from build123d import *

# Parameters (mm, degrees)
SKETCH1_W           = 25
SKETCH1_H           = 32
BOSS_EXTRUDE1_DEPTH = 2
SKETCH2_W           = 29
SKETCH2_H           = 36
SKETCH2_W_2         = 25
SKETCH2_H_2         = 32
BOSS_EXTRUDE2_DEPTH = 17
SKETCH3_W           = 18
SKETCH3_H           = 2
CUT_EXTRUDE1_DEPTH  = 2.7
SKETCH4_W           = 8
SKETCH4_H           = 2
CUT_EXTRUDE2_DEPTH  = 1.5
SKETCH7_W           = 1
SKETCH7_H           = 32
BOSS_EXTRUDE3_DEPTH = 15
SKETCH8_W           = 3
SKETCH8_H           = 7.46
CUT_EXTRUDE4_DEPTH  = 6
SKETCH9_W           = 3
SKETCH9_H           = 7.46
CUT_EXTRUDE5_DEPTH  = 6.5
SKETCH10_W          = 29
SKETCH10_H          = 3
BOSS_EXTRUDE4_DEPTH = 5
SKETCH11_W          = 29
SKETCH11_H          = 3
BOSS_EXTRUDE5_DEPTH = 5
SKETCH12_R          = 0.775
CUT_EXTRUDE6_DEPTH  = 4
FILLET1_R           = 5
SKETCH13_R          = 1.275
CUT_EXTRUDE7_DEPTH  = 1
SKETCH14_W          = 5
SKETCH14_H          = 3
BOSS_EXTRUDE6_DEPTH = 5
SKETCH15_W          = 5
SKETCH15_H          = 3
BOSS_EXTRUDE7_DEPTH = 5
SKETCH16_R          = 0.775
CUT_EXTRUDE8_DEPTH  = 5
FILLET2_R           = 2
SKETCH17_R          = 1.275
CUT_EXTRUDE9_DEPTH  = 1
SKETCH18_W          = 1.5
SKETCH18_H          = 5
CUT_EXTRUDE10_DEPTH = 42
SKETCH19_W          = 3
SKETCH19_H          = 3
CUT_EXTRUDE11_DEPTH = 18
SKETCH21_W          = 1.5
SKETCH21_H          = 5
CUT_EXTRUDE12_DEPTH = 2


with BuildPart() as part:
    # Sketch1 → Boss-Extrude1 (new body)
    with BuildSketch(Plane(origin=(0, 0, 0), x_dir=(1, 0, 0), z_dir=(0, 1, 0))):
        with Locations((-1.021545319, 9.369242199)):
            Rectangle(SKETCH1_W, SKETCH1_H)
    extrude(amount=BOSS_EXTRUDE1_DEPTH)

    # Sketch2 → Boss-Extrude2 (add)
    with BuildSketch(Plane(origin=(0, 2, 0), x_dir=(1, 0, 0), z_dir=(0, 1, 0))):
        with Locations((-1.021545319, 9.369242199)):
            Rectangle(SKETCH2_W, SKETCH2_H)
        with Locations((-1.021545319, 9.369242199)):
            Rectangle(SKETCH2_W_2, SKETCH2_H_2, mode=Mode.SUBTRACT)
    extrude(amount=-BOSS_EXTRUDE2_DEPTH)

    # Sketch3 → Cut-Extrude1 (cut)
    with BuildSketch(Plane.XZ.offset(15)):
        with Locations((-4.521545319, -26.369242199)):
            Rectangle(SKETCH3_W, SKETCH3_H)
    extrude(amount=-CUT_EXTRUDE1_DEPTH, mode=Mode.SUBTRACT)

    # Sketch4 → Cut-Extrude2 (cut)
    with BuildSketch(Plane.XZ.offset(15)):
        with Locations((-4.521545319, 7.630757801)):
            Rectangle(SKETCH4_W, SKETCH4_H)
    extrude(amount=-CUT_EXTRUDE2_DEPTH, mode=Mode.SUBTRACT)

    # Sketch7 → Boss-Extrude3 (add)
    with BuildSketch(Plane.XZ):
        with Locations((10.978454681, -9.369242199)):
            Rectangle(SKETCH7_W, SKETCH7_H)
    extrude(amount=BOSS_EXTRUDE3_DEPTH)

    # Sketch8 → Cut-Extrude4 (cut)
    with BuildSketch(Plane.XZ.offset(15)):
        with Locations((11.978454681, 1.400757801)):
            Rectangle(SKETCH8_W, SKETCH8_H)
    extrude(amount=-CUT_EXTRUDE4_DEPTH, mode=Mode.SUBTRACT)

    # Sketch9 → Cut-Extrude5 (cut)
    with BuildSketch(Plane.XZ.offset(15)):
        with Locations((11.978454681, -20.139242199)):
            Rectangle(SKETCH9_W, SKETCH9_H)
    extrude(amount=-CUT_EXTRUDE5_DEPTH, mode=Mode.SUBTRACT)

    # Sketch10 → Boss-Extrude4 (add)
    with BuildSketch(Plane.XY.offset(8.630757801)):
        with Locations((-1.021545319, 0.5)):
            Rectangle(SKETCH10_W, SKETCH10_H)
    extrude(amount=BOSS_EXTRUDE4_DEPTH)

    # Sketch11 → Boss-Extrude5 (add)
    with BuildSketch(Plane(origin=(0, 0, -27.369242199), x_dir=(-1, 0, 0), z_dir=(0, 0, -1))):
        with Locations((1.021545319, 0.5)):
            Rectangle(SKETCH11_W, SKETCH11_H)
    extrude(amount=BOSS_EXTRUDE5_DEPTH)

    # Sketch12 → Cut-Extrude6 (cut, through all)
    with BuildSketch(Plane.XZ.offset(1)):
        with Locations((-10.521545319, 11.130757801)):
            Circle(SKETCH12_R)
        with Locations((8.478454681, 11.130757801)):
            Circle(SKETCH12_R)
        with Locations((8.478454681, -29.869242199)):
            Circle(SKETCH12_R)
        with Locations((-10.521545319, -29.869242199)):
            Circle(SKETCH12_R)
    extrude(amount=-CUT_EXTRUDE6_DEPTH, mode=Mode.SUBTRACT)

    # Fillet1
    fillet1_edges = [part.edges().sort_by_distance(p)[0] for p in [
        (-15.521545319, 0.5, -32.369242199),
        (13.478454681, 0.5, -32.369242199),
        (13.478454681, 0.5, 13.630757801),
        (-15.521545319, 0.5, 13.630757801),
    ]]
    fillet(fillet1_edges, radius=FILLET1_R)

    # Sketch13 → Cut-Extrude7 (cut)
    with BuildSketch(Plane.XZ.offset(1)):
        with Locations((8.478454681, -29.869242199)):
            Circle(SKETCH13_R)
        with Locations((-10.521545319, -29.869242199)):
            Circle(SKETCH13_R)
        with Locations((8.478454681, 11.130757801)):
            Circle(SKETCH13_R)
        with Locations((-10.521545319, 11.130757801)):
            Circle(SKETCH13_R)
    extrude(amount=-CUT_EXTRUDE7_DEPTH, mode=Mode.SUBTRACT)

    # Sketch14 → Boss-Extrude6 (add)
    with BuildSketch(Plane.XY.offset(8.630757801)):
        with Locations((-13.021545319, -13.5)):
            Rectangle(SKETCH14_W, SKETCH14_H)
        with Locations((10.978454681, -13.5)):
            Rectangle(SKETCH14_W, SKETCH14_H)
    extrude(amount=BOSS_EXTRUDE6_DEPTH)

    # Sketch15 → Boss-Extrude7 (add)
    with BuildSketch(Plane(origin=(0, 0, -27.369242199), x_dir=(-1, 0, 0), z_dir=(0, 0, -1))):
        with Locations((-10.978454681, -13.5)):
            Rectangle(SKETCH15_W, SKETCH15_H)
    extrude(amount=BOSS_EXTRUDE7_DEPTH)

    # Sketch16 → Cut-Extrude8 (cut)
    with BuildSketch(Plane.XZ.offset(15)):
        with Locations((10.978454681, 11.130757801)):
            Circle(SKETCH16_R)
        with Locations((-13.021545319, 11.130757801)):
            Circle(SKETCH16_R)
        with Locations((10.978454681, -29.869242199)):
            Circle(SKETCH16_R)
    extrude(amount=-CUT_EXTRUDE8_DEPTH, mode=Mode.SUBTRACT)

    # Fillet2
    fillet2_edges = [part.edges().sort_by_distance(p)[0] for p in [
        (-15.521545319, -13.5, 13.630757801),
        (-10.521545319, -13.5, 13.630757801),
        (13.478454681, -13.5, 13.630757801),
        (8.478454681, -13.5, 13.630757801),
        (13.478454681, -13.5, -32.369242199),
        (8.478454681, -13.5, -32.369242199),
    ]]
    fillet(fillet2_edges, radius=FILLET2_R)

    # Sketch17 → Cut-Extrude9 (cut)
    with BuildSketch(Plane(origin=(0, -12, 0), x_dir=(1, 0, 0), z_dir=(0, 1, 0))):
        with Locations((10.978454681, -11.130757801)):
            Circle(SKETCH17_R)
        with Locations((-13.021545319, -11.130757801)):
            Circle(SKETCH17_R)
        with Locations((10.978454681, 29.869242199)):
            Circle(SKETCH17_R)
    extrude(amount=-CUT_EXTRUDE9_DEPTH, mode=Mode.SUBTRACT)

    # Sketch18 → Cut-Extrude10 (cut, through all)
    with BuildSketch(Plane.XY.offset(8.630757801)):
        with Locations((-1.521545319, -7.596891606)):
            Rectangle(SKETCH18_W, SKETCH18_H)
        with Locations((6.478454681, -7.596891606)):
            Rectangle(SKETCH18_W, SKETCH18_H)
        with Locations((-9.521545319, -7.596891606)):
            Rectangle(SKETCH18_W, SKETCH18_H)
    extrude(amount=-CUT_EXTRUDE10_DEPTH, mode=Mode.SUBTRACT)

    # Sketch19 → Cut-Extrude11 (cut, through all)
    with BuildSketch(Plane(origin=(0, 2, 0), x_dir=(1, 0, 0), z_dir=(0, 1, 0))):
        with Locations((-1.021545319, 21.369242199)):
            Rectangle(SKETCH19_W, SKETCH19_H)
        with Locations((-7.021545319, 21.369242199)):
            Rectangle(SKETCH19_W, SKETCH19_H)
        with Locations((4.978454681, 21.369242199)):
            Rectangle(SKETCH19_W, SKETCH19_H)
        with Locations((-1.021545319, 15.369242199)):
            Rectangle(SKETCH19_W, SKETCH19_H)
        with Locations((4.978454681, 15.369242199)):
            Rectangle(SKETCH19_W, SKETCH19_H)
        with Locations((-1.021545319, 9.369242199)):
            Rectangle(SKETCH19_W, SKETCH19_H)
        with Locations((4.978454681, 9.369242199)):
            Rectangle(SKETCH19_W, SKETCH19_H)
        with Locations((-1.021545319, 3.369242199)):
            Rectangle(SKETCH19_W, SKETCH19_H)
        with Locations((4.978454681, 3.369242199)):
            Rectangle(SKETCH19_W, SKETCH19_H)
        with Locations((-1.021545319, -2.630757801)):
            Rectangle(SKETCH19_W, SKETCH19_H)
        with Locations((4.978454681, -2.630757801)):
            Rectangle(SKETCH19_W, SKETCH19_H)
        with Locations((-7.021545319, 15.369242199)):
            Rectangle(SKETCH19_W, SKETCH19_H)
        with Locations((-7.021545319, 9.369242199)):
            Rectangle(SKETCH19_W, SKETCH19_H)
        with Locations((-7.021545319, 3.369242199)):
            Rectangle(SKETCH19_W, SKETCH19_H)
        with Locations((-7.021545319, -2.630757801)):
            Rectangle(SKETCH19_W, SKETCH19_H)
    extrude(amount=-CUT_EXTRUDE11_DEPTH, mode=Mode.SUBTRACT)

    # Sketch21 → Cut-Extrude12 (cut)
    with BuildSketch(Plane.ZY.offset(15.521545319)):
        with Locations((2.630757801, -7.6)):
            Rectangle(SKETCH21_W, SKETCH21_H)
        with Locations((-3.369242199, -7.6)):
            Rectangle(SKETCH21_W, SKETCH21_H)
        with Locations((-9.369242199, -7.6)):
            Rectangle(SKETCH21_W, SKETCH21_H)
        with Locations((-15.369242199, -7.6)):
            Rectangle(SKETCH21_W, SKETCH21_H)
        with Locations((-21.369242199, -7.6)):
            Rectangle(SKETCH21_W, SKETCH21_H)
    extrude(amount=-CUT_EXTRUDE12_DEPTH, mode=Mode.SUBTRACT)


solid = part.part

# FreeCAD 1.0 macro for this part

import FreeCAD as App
import Part
import Sketcher
Q = App.Units.Quantity


def edges_at(feature, points):
    """Names of the edges that pass closest to the given points."""
    edges = feature.Shape.Edges
    near = lambda p: min(range(len(edges)), key=lambda i: edges[i].distToShape(Part.Vertex(*p))[0])
    return sorted({f"Edge{near(p) + 1}" for p in points})


def add_polygon(sketch, points):
    """Adds a closed chain of lines whose ends are joined by coincident constraints."""
    first, n = sketch.GeometryCount, len(points)
    for a, b in zip(points, points[1:] + points[:1]):
        sketch.addGeometry(Part.LineSegment(App.Vector(*a, 0), App.Vector(*b, 0)), False)
    for i in range(n):
        sketch.addConstraint(Sketcher.Constraint("Coincident", first + i, 2, first + (i + 1) % n, 1))

doc = App.newDocument("Part")
params = doc.addObject("Spreadsheet::Sheet", "Params")
for row, (alias, value) in enumerate([
    ("sketch1_width", "25 mm"),
    ("sketch1_height", "32 mm"),
    ("pad1_length", "2 mm"),
    ("sketch2_width", "29 mm"),
    ("sketch2_width2", "25 mm"),
    ("sketch2_height", "36 mm"),
    ("sketch2_height2", "32 mm"),
    ("pad2_length", "17 mm"),
    ("sketch3_width", "18 mm"),
    ("sketch3_height", "2 mm"),
    ("pocket1_length", "2.7 mm"),
    ("sketch4_width", "8 mm"),
    ("sketch4_height", "2 mm"),
    ("pocket2_length", "1.5 mm"),
    ("sketch5_width", "1 mm"),
    ("sketch5_height", "32 mm"),
    ("pad3_length", "15 mm"),
    ("sketch6_width", "3 mm"),
    ("sketch6_height", "7.46 mm"),
    ("pocket3_length", "6 mm"),
    ("sketch7_width", "3 mm"),
    ("sketch7_height", "7.46 mm"),
    ("pocket4_length", "6.5 mm"),
    ("sketch8_width", "29 mm"),
    ("sketch8_height", "3 mm"),
    ("pad4_length", "5 mm"),
    ("sketch9_width", "29 mm"),
    ("sketch9_height", "3 mm"),
    ("pad5_length", "5 mm"),
    ("sketch10_diameter", "1.55 mm"),
    ("fillet_radius", "5 mm"),
    ("sketch11_diameter", "2.55 mm"),
    ("pocket6_length", "1 mm"),
    ("sketch12_width", "5 mm"),
    ("sketch12_height", "3 mm"),
    ("pad6_length", "5 mm"),
    ("sketch13_width", "5 mm"),
    ("sketch13_height", "3 mm"),
    ("pad7_length", "5 mm"),
    ("sketch14_diameter", "1.55 mm"),
    ("pocket7_length", "5 mm"),
    ("fillet2_radius", "2 mm"),
    ("sketch15_diameter", "2.55 mm"),
    ("pocket8_length", "1 mm"),
    ("sketch16_height", "5 mm"),
    ("sketch16_width", "1.5 mm"),
    ("sketch17_width", "3 mm"),
    ("sketch18_width", "5 mm"),
    ("sketch18_height", "1.5 mm"),
    ("pocket11_length", "2 mm"),
], start=1):
    params.set(f"A{row}", alias)
    params.set(f"B{row}", "=" + value)
    params.setAlias(f"B{row}", alias)

body = doc.addObject("PartDesign::Body", "Body")

sketch1 = body.newObject("Sketcher::SketchObject", "Sketch")
sketch1.AttachmentSupport = (doc.getObject("XZ_Plane"), [""])
sketch1.MapMode = "FlatFace"
add_polygon(sketch1, [(-14, -25), (-14, 7), (11, 7), (11, -25)])
sketch1.addConstraint([
    Sketcher.Constraint("Vertical", 0),
    Sketcher.Constraint("Horizontal", 1),
    Sketcher.Constraint("Vertical", 2),
    Sketcher.Constraint("Horizontal", 3),
    Sketcher.Constraint("DistanceX", 1, 1, 1, 2, Q("25 mm")),
    Sketcher.Constraint("DistanceY", 0, 1, 0, 2, Q("32 mm")),
    Sketcher.Constraint("DistanceX", 0, 2, -1, 1, Q("13.521545 mm")),
    Sketcher.Constraint("DistanceY", -1, 1, 0, 2, Q("6.630758 mm")),
])
sketch1.setExpression("Constraints[8]", "Params.sketch1_width")
sketch1.setExpression("Constraints[9]", "Params.sketch1_height")
pad1 = body.newObject("PartDesign::Pad", "Pad")
pad1.Profile = sketch1
pad1.setExpression("Length", "Params.pad1_length")
pad1.Reversed = True

sketch2 = body.newObject("Sketcher::SketchObject", "Sketch001")
sketch2.AttachmentSupport = (doc.getObject("XZ_Plane"), [""])
sketch2.MapMode = "FlatFace"
sketch2.AttachmentOffset = App.Placement(App.Vector(0, 0, -2), App.Rotation())
add_polygon(sketch2, [(-16, -27), (-16, 9), (13, 9), (13, -27)])
add_polygon(sketch2, [(11, 7), (-14, 7), (-14, -25), (11, -25)])
sketch2.addConstraint([
    Sketcher.Constraint("Vertical", 0),
    Sketcher.Constraint("Horizontal", 1),
    Sketcher.Constraint("Vertical", 2),
    Sketcher.Constraint("Horizontal", 3),
    Sketcher.Constraint("Horizontal", 4),
    Sketcher.Constraint("Vertical", 5),
    Sketcher.Constraint("Horizontal", 6),
    Sketcher.Constraint("Vertical", 7),
    Sketcher.Constraint("DistanceX", 1, 1, 1, 2, Q("29 mm")),
    Sketcher.Constraint("DistanceX", 4, 2, 4, 1, Q("25 mm")),
    Sketcher.Constraint("DistanceY", 0, 1, 0, 2, Q("36 mm")),
    Sketcher.Constraint("DistanceY", 5, 2, 5, 1, Q("32 mm")),
    Sketcher.Constraint("DistanceX", 0, 2, 4, 2, Q("2 mm")),
    Sketcher.Constraint("DistanceY", 4, 2, 0, 2, Q("2 mm")),
    Sketcher.Constraint("DistanceX", 0, 2, -1, 1, Q("15.521545 mm")),
    Sketcher.Constraint("DistanceY", -1, 1, 0, 2, Q("8.630758 mm")),
])
sketch2.setExpression("Constraints[16]", "Params.sketch2_width")
sketch2.setExpression("Constraints[17]", "Params.sketch2_width2")
sketch2.setExpression("Constraints[18]", "Params.sketch2_height")
sketch2.setExpression("Constraints[19]", "Params.sketch2_height2")
pad2 = body.newObject("PartDesign::Pad", "Pad001")
pad2.Profile = sketch2
pad2.setExpression("Length", "Params.pad2_length")

sketch3 = body.newObject("Sketcher::SketchObject", "Sketch002")
sketch3.AttachmentSupport = (doc.getObject("XZ_Plane"), [""])
sketch3.MapMode = "FlatFace"
sketch3.AttachmentOffset = App.Placement(App.Vector(0, 0, 15), App.Rotation())
add_polygon(sketch3, [(-13.5, -25.4), (-13.5, -27.4), (4.5, -27.4), (4.5, -25.4)])
sketch3.addConstraint([
    Sketcher.Constraint("Vertical", 0),
    Sketcher.Constraint("Horizontal", 1),
    Sketcher.Constraint("Vertical", 2),
    Sketcher.Constraint("Horizontal", 3),
    Sketcher.Constraint("DistanceX", 1, 1, 1, 2, Q("18 mm")),
    Sketcher.Constraint("DistanceY", 0, 2, 0, 1, Q("2 mm")),
    Sketcher.Constraint("DistanceX", 0, 2, -1, 1, Q("13.521545 mm")),
    Sketcher.Constraint("DistanceY", 0, 2, -1, 1, Q("27.369242 mm")),
])
sketch3.setExpression("Constraints[8]", "Params.sketch3_width")
sketch3.setExpression("Constraints[9]", "Params.sketch3_height")
pocket1 = body.newObject("PartDesign::Pocket", "Pocket")
pocket1.Profile = sketch3
pocket1.setExpression("Length", "Params.pocket1_length")

sketch4 = body.newObject("Sketcher::SketchObject", "Sketch003")
sketch4.AttachmentSupport = (doc.getObject("XZ_Plane"), [""])
sketch4.MapMode = "FlatFace"
sketch4.AttachmentOffset = App.Placement(App.Vector(0, 0, 15), App.Rotation())
add_polygon(sketch4, [(-8.5, 8.6), (-8.5, 6.6), (-0.5, 6.6), (-0.5, 8.6)])
sketch4.addConstraint([
    Sketcher.Constraint("Vertical", 0),
    Sketcher.Constraint("Horizontal", 1),
    Sketcher.Constraint("Vertical", 2),
    Sketcher.Constraint("Horizontal", 3),
    Sketcher.Constraint("DistanceX", 1, 1, 1, 2, Q("8 mm")),
    Sketcher.Constraint("DistanceY", 0, 2, 0, 1, Q("2 mm")),
    Sketcher.Constraint("DistanceX", 0, 2, -1, 1, Q("8.521545 mm")),
    Sketcher.Constraint("DistanceY", -1, 1, 0, 2, Q("6.630758 mm")),
])
sketch4.setExpression("Constraints[8]", "Params.sketch4_width")
sketch4.setExpression("Constraints[9]", "Params.sketch4_height")
pocket2 = body.newObject("PartDesign::Pocket", "Pocket001")
pocket2.Profile = sketch4
pocket2.setExpression("Length", "Params.pocket2_length")

sketch5 = body.newObject("Sketcher::SketchObject", "Sketch004")
sketch5.AttachmentSupport = (doc.getObject("XZ_Plane"), [""])
sketch5.MapMode = "FlatFace"
add_polygon(sketch5, [(10.5, 6.6), (10.5, -25.4), (11.5, -25.4), (11.5, 6.6)])
sketch5.addConstraint([
    Sketcher.Constraint("Vertical", 0),
    Sketcher.Constraint("Horizontal", 1),
    Sketcher.Constraint("Vertical", 2),
    Sketcher.Constraint("Horizontal", 3),
    Sketcher.Constraint("DistanceX", 1, 1, 1, 2, Q("1 mm")),
    Sketcher.Constraint("DistanceY", 0, 2, 0, 1, Q("32 mm")),
    Sketcher.Constraint("DistanceX", -1, 1, 0, 2, Q("10.478455 mm")),
    Sketcher.Constraint("DistanceY", 0, 2, -1, 1, Q("25.369242 mm")),
])
sketch5.setExpression("Constraints[8]", "Params.sketch5_width")
sketch5.setExpression("Constraints[9]", "Params.sketch5_height")
pad3 = body.newObject("PartDesign::Pad", "Pad002")
pad3.Profile = sketch5
pad3.setExpression("Length", "Params.pad3_length")

sketch6 = body.newObject("Sketcher::SketchObject", "Sketch005")
sketch6.AttachmentSupport = (doc.getObject("XZ_Plane"), [""])
sketch6.MapMode = "FlatFace"
sketch6.AttachmentOffset = App.Placement(App.Vector(0, 0, 15), App.Rotation())
add_polygon(sketch6, [(10.5, 5.1), (10.5, -2.3), (13.5, -2.3), (13.5, 5.1)])
sketch6.addConstraint([
    Sketcher.Constraint("Vertical", 0),
    Sketcher.Constraint("Horizontal", 1),
    Sketcher.Constraint("Vertical", 2),
    Sketcher.Constraint("Horizontal", 3),
    Sketcher.Constraint("DistanceX", 1, 1, 1, 2, Q("3 mm")),
    Sketcher.Constraint("DistanceY", 0, 2, 0, 1, Q("7.46 mm")),
    Sketcher.Constraint("DistanceX", -1, 1, 0, 2, Q("10.478455 mm")),
    Sketcher.Constraint("DistanceY", 0, 2, -1, 1, Q("2.329242 mm")),
])
sketch6.setExpression("Constraints[8]", "Params.sketch6_width")
sketch6.setExpression("Constraints[9]", "Params.sketch6_height")
pocket3 = body.newObject("PartDesign::Pocket", "Pocket002")
pocket3.Profile = sketch6
pocket3.setExpression("Length", "Params.pocket3_length")

sketch7 = body.newObject("Sketcher::SketchObject", "Sketch006")
sketch7.AttachmentSupport = (doc.getObject("XZ_Plane"), [""])
sketch7.MapMode = "FlatFace"
sketch7.AttachmentOffset = App.Placement(App.Vector(0, 0, 15), App.Rotation())
add_polygon(sketch7, [(10.5, -16.4), (10.5, -23.9), (13.5, -23.9), (13.5, -16.4)])
sketch7.addConstraint([
    Sketcher.Constraint("Vertical", 0),
    Sketcher.Constraint("Horizontal", 1),
    Sketcher.Constraint("Vertical", 2),
    Sketcher.Constraint("Horizontal", 3),
    Sketcher.Constraint("DistanceX", 1, 1, 1, 2, Q("3 mm")),
    Sketcher.Constraint("DistanceY", 0, 2, 0, 1, Q("7.46 mm")),
    Sketcher.Constraint("DistanceX", -1, 1, 0, 2, Q("10.478455 mm")),
    Sketcher.Constraint("DistanceY", 0, 2, -1, 1, Q("23.869242 mm")),
])
sketch7.setExpression("Constraints[8]", "Params.sketch7_width")
sketch7.setExpression("Constraints[9]", "Params.sketch7_height")
pocket4 = body.newObject("PartDesign::Pocket", "Pocket003")
pocket4.Profile = sketch7
pocket4.setExpression("Length", "Params.pocket4_length")

sketch8 = body.newObject("Sketcher::SketchObject", "Sketch007")
sketch8.AttachmentSupport = (doc.getObject("XY_Plane"), [""])
sketch8.MapMode = "FlatFace"
sketch8.AttachmentOffset = App.Placement(App.Vector(0, 0, 8.630758), App.Rotation())
add_polygon(sketch8, [(-15.5, 2), (-15.5, -1), (13.5, -1), (13.5, 2)])
sketch8.addConstraint([
    Sketcher.Constraint("Vertical", 0),
    Sketcher.Constraint("Horizontal", 1),
    Sketcher.Constraint("Vertical", 2),
    Sketcher.Constraint("Horizontal", 3),
    Sketcher.Constraint("DistanceX", 1, 1, 1, 2, Q("29 mm")),
    Sketcher.Constraint("DistanceY", 0, 2, 0, 1, Q("3 mm")),
    Sketcher.Constraint("DistanceY", 0, 2, -1, 1, Q("1 mm")),
    Sketcher.Constraint("DistanceX", 0, 2, -1, 1, Q("15.521545 mm")),
])
sketch8.setExpression("Constraints[8]", "Params.sketch8_width")
sketch8.setExpression("Constraints[9]", "Params.sketch8_height")
pad4 = body.newObject("PartDesign::Pad", "Pad003")
pad4.Profile = sketch8
pad4.setExpression("Length", "Params.pad4_length")

sketch9 = body.newObject("Sketcher::SketchObject", "Sketch008")
sketch9.AttachmentSupport = (doc.getObject("XY_Plane"), [""])
sketch9.MapMode = "FlatFace"
sketch9.AttachmentOffset = App.Placement(App.Vector(0, 0, -27.369242), App.Rotation())
add_polygon(sketch9, [(13.5, 2), (13.5, -1), (-15.5, -1), (-15.5, 2)])
sketch9.addConstraint([
    Sketcher.Constraint("Vertical", 0),
    Sketcher.Constraint("Horizontal", 1),
    Sketcher.Constraint("Vertical", 2),
    Sketcher.Constraint("Horizontal", 3),
    Sketcher.Constraint("DistanceX", 1, 2, 1, 1, Q("29 mm")),
    Sketcher.Constraint("DistanceY", 0, 2, 0, 1, Q("3 mm")),
    Sketcher.Constraint("DistanceY", 0, 2, -1, 1, Q("1 mm")),
    Sketcher.Constraint("DistanceX", -1, 1, 0, 2, Q("13.478455 mm")),
])
sketch9.setExpression("Constraints[8]", "Params.sketch9_width")
sketch9.setExpression("Constraints[9]", "Params.sketch9_height")
pad5 = body.newObject("PartDesign::Pad", "Pad004")
pad5.Profile = sketch9
pad5.setExpression("Length", "Params.pad5_length")
pad5.Reversed = True

sketch10 = body.newObject("Sketcher::SketchObject", "Sketch009")
sketch10.AttachmentSupport = (doc.getObject("XZ_Plane"), [""])
sketch10.MapMode = "FlatFace"
sketch10.AttachmentOffset = App.Placement(App.Vector(0, 0, 1), App.Rotation())
sketch10.addGeometry([
    Part.Circle(App.Vector(-10.5, 11.1, 0), App.Vector(0, 0, 1), 0.8),
    Part.Circle(App.Vector(8.5, 11.1, 0), App.Vector(0, 0, 1), 0.8),
    Part.Circle(App.Vector(8.5, -29.9, 0), App.Vector(0, 0, 1), 0.8),
    Part.Circle(App.Vector(-10.5, -29.9, 0), App.Vector(0, 0, 1), 0.8),
], False)
sketch10.addConstraint([
    Sketcher.Constraint("Equal", 0, 1),
    Sketcher.Constraint("Equal", 1, 2),
    Sketcher.Constraint("Equal", 2, 3),
    Sketcher.Constraint("Horizontal", 0, 3, 1, 3),
    Sketcher.Constraint("Horizontal", 2, 3, 3, 3),
    Sketcher.Constraint("Vertical", 1, 3, 2, 3),
    Sketcher.Constraint("Vertical", 0, 3, 3, 3),
    Sketcher.Constraint("Diameter", 0, Q("1.55 mm")),
    Sketcher.Constraint("DistanceX", 0, 3, 1, 3, Q("19 mm")),
    Sketcher.Constraint("DistanceY", 2, 3, 1, 3, Q("41 mm")),
    Sketcher.Constraint("DistanceX", 0, 3, -1, 1, Q("10.521545 mm")),
    Sketcher.Constraint("DistanceY", -1, 1, 0, 3, Q("11.130758 mm")),
])
sketch10.setExpression("Constraints[7]", "Params.sketch10_diameter")
pocket5 = body.newObject("PartDesign::Pocket", "Pocket004")
pocket5.Profile = sketch10
pocket5.Type = "ThroughAll"
doc.recompute()

fillet = body.newObject("PartDesign::Fillet", "Fillet")
fillet.Base = (pocket5, edges_at(pocket5, [
    (-15.522, 0.5, -32.369),
    (13.478, 0.5, -32.369),
    (13.478, 0.5, 13.631),
    (-15.522, 0.5, 13.631),
]))
fillet.setExpression("Radius", "Params.fillet_radius")

sketch11 = body.newObject("Sketcher::SketchObject", "Sketch010")
sketch11.AttachmentSupport = (doc.getObject("XZ_Plane"), [""])
sketch11.MapMode = "FlatFace"
sketch11.AttachmentOffset = App.Placement(App.Vector(0, 0, 1), App.Rotation())
sketch11.addGeometry([
    Part.Circle(App.Vector(8.5, -29.9, 0), App.Vector(0, 0, 1), 1.3),
    Part.Circle(App.Vector(-10.5, -29.9, 0), App.Vector(0, 0, 1), 1.3),
    Part.Circle(App.Vector(8.5, 11.1, 0), App.Vector(0, 0, 1), 1.3),
    Part.Circle(App.Vector(-10.5, 11.1, 0), App.Vector(0, 0, 1), 1.3),
], False)
sketch11.addConstraint([
    Sketcher.Constraint("Equal", 0, 1),
    Sketcher.Constraint("Equal", 1, 2),
    Sketcher.Constraint("Equal", 2, 3),
    Sketcher.Constraint("Horizontal", 0, 3, 1, 3),
    Sketcher.Constraint("Horizontal", 2, 3, 3, 3),
    Sketcher.Constraint("Vertical", 0, 3, 2, 3),
    Sketcher.Constraint("Vertical", 1, 3, 3, 3),
    Sketcher.Constraint("Diameter", 0, Q("2.55 mm")),
    Sketcher.Constraint("DistanceX", 1, 3, 0, 3, Q("19 mm")),
    Sketcher.Constraint("DistanceY", 0, 3, 2, 3, Q("41 mm")),
    Sketcher.Constraint("DistanceX", -1, 1, 0, 3, Q("8.478455 mm")),
    Sketcher.Constraint("DistanceY", 0, 3, -1, 1, Q("29.869242 mm")),
])
sketch11.setExpression("Constraints[7]", "Params.sketch11_diameter")
pocket6 = body.newObject("PartDesign::Pocket", "Pocket005")
pocket6.Profile = sketch11
pocket6.setExpression("Length", "Params.pocket6_length")

sketch12 = body.newObject("Sketcher::SketchObject", "Sketch011")
sketch12.AttachmentSupport = (doc.getObject("XY_Plane"), [""])
sketch12.MapMode = "FlatFace"
sketch12.AttachmentOffset = App.Placement(App.Vector(0, 0, 8.630758), App.Rotation())
add_polygon(sketch12, [(-15.5, -12), (-15.5, -15), (-10.5, -15), (-10.5, -12)])
add_polygon(sketch12, [(8.5, -12), (8.5, -15), (13.5, -15), (13.5, -12)])
sketch12.addConstraint([
    Sketcher.Constraint("Vertical", 0),
    Sketcher.Constraint("Horizontal", 1),
    Sketcher.Constraint("Vertical", 2),
    Sketcher.Constraint("Horizontal", 3),
    Sketcher.Constraint("Vertical", 4),
    Sketcher.Constraint("Horizontal", 5),
    Sketcher.Constraint("Vertical", 6),
    Sketcher.Constraint("Horizontal", 7),
    Sketcher.Constraint("Horizontal", 1, 2, 4, 2),
    Sketcher.Constraint("Horizontal", 3, 2, 6, 2),
    Sketcher.Constraint("Equal", 3, 5),
    Sketcher.Constraint("DistanceX", 1, 1, 1, 2, Q("5 mm")),
    Sketcher.Constraint("DistanceY", 0, 2, 0, 1, Q("3 mm")),
    Sketcher.Constraint("DistanceY", 0, 2, -1, 1, Q("15 mm")),
    Sketcher.Constraint("DistanceX", 1, 2, 4, 2, Q("19 mm")),
    Sketcher.Constraint("DistanceX", 0, 2, -1, 1, Q("15.521545 mm")),
])
sketch12.setExpression("Constraints[19]", "Params.sketch12_width")
sketch12.setExpression("Constraints[20]", "Params.sketch12_height")
pad6 = body.newObject("PartDesign::Pad", "Pad005")
pad6.Profile = sketch12
pad6.setExpression("Length", "Params.pad6_length")

sketch13 = body.newObject("Sketcher::SketchObject", "Sketch012")
sketch13.AttachmentSupport = (doc.getObject("XY_Plane"), [""])
sketch13.MapMode = "FlatFace"
sketch13.AttachmentOffset = App.Placement(App.Vector(0, 0, -27.369242), App.Rotation())
add_polygon(sketch13, [(13.5, -12), (13.5, -15), (8.5, -15), (8.5, -12)])
sketch13.addConstraint([
    Sketcher.Constraint("Vertical", 0),
    Sketcher.Constraint("Horizontal", 1),
    Sketcher.Constraint("Vertical", 2),
    Sketcher.Constraint("Horizontal", 3),
    Sketcher.Constraint("DistanceX", 1, 2, 1, 1, Q("5 mm")),
    Sketcher.Constraint("DistanceY", 0, 2, 0, 1, Q("3 mm")),
    Sketcher.Constraint("DistanceY", 0, 2, -1, 1, Q("15 mm")),
    Sketcher.Constraint("DistanceX", -1, 1, 0, 2, Q("13.478455 mm")),
])
sketch13.setExpression("Constraints[8]", "Params.sketch13_width")
sketch13.setExpression("Constraints[9]", "Params.sketch13_height")
pad7 = body.newObject("PartDesign::Pad", "Pad006")
pad7.Profile = sketch13
pad7.setExpression("Length", "Params.pad7_length")
pad7.Reversed = True

sketch14 = body.newObject("Sketcher::SketchObject", "Sketch013")
sketch14.AttachmentSupport = (doc.getObject("XZ_Plane"), [""])
sketch14.MapMode = "FlatFace"
sketch14.AttachmentOffset = App.Placement(App.Vector(0, 0, 15), App.Rotation())
sketch14.addGeometry([
    Part.Circle(App.Vector(11, 11.1, 0), App.Vector(0, 0, 1), 0.8),
    Part.Circle(App.Vector(-13, 11.1, 0), App.Vector(0, 0, 1), 0.8),
    Part.Circle(App.Vector(11, -29.9, 0), App.Vector(0, 0, 1), 0.8),
], False)
sketch14.addConstraint([
    Sketcher.Constraint("Equal", 0, 1),
    Sketcher.Constraint("Equal", 1, 2),
    Sketcher.Constraint("Horizontal", 0, 3, 1, 3),
    Sketcher.Constraint("Vertical", 0, 3, 2, 3),
    Sketcher.Constraint("Diameter", 0, Q("1.55 mm")),
    Sketcher.Constraint("DistanceX", 1, 3, 0, 3, Q("24 mm")),
    Sketcher.Constraint("DistanceY", 2, 3, 0, 3, Q("41 mm")),
    Sketcher.Constraint("DistanceX", -1, 1, 0, 3, Q("10.978455 mm")),
    Sketcher.Constraint("DistanceY", -1, 1, 0, 3, Q("11.130758 mm")),
])
sketch14.setExpression("Constraints[4]", "Params.sketch14_diameter")
pocket7 = body.newObject("PartDesign::Pocket", "Pocket006")
pocket7.Profile = sketch14
pocket7.setExpression("Length", "Params.pocket7_length")
doc.recompute()

fillet2 = body.newObject("PartDesign::Fillet", "Fillet001")
fillet2.Base = (pocket7, edges_at(pocket7, [
    (-15.522, -13.5, 13.631),
    (-10.522, -13.5, 13.631),
    (13.478, -13.5, 13.631),
    (8.478, -13.5, 13.631),
    (13.478, -13.5, -32.369),
    (8.478, -13.5, -32.369),
]))
fillet2.setExpression("Radius", "Params.fillet2_radius")

sketch15 = body.newObject("Sketcher::SketchObject", "Sketch014")
sketch15.AttachmentSupport = (doc.getObject("XZ_Plane"), [""])
sketch15.MapMode = "FlatFace"
sketch15.AttachmentOffset = App.Placement(App.Vector(0, 0, 12), App.Rotation())
sketch15.addGeometry([
    Part.Circle(App.Vector(11, 11.1, 0), App.Vector(0, 0, 1), 1.3),
    Part.Circle(App.Vector(-13, 11.1, 0), App.Vector(0, 0, 1), 1.3),
    Part.Circle(App.Vector(11, -29.9, 0), App.Vector(0, 0, 1), 1.3),
], False)
sketch15.addConstraint([
    Sketcher.Constraint("Equal", 0, 1),
    Sketcher.Constraint("Equal", 1, 2),
    Sketcher.Constraint("Horizontal", 0, 3, 1, 3),
    Sketcher.Constraint("Vertical", 0, 3, 2, 3),
    Sketcher.Constraint("Diameter", 0, Q("2.55 mm")),
    Sketcher.Constraint("DistanceX", 1, 3, 0, 3, Q("24 mm")),
    Sketcher.Constraint("DistanceY", 2, 3, 0, 3, Q("41 mm")),
    Sketcher.Constraint("DistanceX", -1, 1, 0, 3, Q("10.978455 mm")),
    Sketcher.Constraint("DistanceY", -1, 1, 0, 3, Q("11.130758 mm")),
])
sketch15.setExpression("Constraints[4]", "Params.sketch15_diameter")
pocket8 = body.newObject("PartDesign::Pocket", "Pocket007")
pocket8.Profile = sketch15
pocket8.setExpression("Length", "Params.pocket8_length")
pocket8.Reversed = True

sketch16 = body.newObject("Sketcher::SketchObject", "Sketch015")
sketch16.AttachmentSupport = (doc.getObject("XY_Plane"), [""])
sketch16.MapMode = "FlatFace"
sketch16.AttachmentOffset = App.Placement(App.Vector(0, 0, 8.630758), App.Rotation())
add_polygon(sketch16, [(-2.3, -5.1), (-2.3, -10.1), (-0.8, -10.1), (-0.8, -5.1)])
add_polygon(sketch16, [(5.7, -5.1), (5.7, -10.1), (7.2, -10.1), (7.2, -5.1)])
add_polygon(sketch16, [(-10.3, -5.1), (-10.3, -10.1), (-8.8, -10.1), (-8.8, -5.1)])
sketch16.addConstraint([
    Sketcher.Constraint("Vertical", 0),
    Sketcher.Constraint("Horizontal", 1),
    Sketcher.Constraint("Vertical", 2),
    Sketcher.Constraint("Horizontal", 3),
    Sketcher.Constraint("Vertical", 4),
    Sketcher.Constraint("Horizontal", 5),
    Sketcher.Constraint("Vertical", 6),
    Sketcher.Constraint("Horizontal", 7),
    Sketcher.Constraint("Vertical", 8),
    Sketcher.Constraint("Horizontal", 9),
    Sketcher.Constraint("Vertical", 10),
    Sketcher.Constraint("Horizontal", 11),
    Sketcher.Constraint("Horizontal", 1, 2, 4, 2),
    Sketcher.Constraint("Horizontal", 3, 2, 6, 2),
    Sketcher.Constraint("Horizontal", 5, 2, 8, 2),
    Sketcher.Constraint("Horizontal", 7, 2, 10, 2),
    Sketcher.Constraint("Equal", 3, 5),
    Sketcher.Constraint("Equal", 7, 9),
    Sketcher.Constraint("DistanceY", 0, 2, 0, 1, Q("5 mm")),
    Sketcher.Constraint("DistanceX", 1, 1, 1, 2, Q("1.5 mm")),
    Sketcher.Constraint("DistanceX", 0, 2, 4, 2, Q("8 mm")),
    Sketcher.Constraint("DistanceX", 8, 2, 0, 2, Q("8 mm")),
    Sketcher.Constraint("DistanceY", 0, 2, -1, 1, Q("10.096892 mm")),
    Sketcher.Constraint("DistanceX", 0, 2, -1, 1, Q("2.271545 mm")),
])
sketch16.setExpression("Constraints[30]", "Params.sketch16_height")
sketch16.setExpression("Constraints[31]", "Params.sketch16_width")
pocket9 = body.newObject("PartDesign::Pocket", "Pocket008")
pocket9.Profile = sketch16
pocket9.Type = "ThroughAll"

sketch17 = body.newObject("Sketcher::SketchObject", "Sketch016")
sketch17.AttachmentSupport = (doc.getObject("XZ_Plane"), [""])
sketch17.MapMode = "FlatFace"
sketch17.AttachmentOffset = App.Placement(App.Vector(0, 0, -2), App.Rotation())
add_polygon(sketch17, [(-2.5, -22.9), (-2.5, -19.9), (0.5, -19.9), (0.5, -22.9)])
add_polygon(sketch17, [(-8.5, -22.9), (-8.5, -19.9), (-5.5, -19.9), (-5.5, -22.9)])
add_polygon(sketch17, [(3.5, -22.9), (3.5, -19.9), (6.5, -19.9), (6.5, -22.9)])
add_polygon(sketch17, [(-2.5, -16.9), (-2.5, -13.9), (0.5, -13.9), (0.5, -16.9)])
add_polygon(sketch17, [(3.5, -16.9), (3.5, -13.9), (6.5, -13.9), (6.5, -16.9)])
add_polygon(sketch17, [(-2.5, -10.9), (-2.5, -7.9), (0.5, -7.9), (0.5, -10.9)])
add_polygon(sketch17, [(3.5, -10.9), (3.5, -7.9), (6.5, -7.9), (6.5, -10.9)])
add_polygon(sketch17, [(-2.5, -4.9), (-2.5, -1.9), (0.5, -1.9), (0.5, -4.9)])
add_polygon(sketch17, [(3.5, -4.9), (3.5, -1.9), (6.5, -1.9), (6.5, -4.9)])
add_polygon(sketch17, [(-2.5, 1.1), (-2.5, 4.1), (0.5, 4.1), (0.5, 1.1)])
add_polygon(sketch17, [(3.5, 1.1), (3.5, 4.1), (6.5, 4.1), (6.5, 1.1)])
add_polygon(sketch17, [(-8.5, -16.9), (-8.5, -13.9), (-5.5, -13.9), (-5.5, -16.9)])
add_polygon(sketch17, [(-8.5, -10.9), (-8.5, -7.9), (-5.5, -7.9), (-5.5, -10.9)])
add_polygon(sketch17, [(-8.5, -4.9), (-8.5, -1.9), (-5.5, -1.9), (-5.5, -4.9)])
add_polygon(sketch17, [(-8.5, 1.1), (-8.5, 4.1), (-5.5, 4.1), (-5.5, 1.1)])
sketch17.addConstraint([
    Sketcher.Constraint("Vertical", 0),
    Sketcher.Constraint("Horizontal", 1),
    Sketcher.Constraint("Vertical", 2),
    Sketcher.Constraint("Horizontal", 3),
    Sketcher.Constraint("Vertical", 4),
    Sketcher.Constraint("Horizontal", 5),
    Sketcher.Constraint("Vertical", 6),
    Sketcher.Constraint("Horizontal", 7),
    Sketcher.Constraint("Vertical", 8),
    Sketcher.Constraint("Horizontal", 9),
    Sketcher.Constraint("Vertical", 10),
    Sketcher.Constraint("Horizontal", 11),
    Sketcher.Constraint("Vertical", 12),
    Sketcher.Constraint("Horizontal", 13),
    Sketcher.Constraint("Vertical", 14),
    Sketcher.Constraint("Horizontal", 15),
    Sketcher.Constraint("Vertical", 16),
    Sketcher.Constraint("Horizontal", 17),
    Sketcher.Constraint("Vertical", 18),
    Sketcher.Constraint("Horizontal", 19),
    Sketcher.Constraint("Vertical", 20),
    Sketcher.Constraint("Horizontal", 21),
    Sketcher.Constraint("Vertical", 22),
    Sketcher.Constraint("Horizontal", 23),
    Sketcher.Constraint("Vertical", 24),
    Sketcher.Constraint("Horizontal", 25),
    Sketcher.Constraint("Vertical", 26),
    Sketcher.Constraint("Horizontal", 27),
    Sketcher.Constraint("Vertical", 28),
    Sketcher.Constraint("Horizontal", 29),
    Sketcher.Constraint("Vertical", 30),
    Sketcher.Constraint("Horizontal", 31),
    Sketcher.Constraint("Vertical", 32),
    Sketcher.Constraint("Horizontal", 33),
    Sketcher.Constraint("Vertical", 34),
    Sketcher.Constraint("Horizontal", 35),
    Sketcher.Constraint("Vertical", 36),
    Sketcher.Constraint("Horizontal", 37),
    Sketcher.Constraint("Vertical", 38),
    Sketcher.Constraint("Horizontal", 39),
    Sketcher.Constraint("Vertical", 40),
    Sketcher.Constraint("Horizontal", 41),
    Sketcher.Constraint("Vertical", 42),
    Sketcher.Constraint("Horizontal", 43),
    Sketcher.Constraint("Vertical", 44),
    Sketcher.Constraint("Horizontal", 45),
    Sketcher.Constraint("Vertical", 46),
    Sketcher.Constraint("Horizontal", 47),
    Sketcher.Constraint("Vertical", 48),
    Sketcher.Constraint("Horizontal", 49),
    Sketcher.Constraint("Vertical", 50),
    Sketcher.Constraint("Horizontal", 51),
    Sketcher.Constraint("Vertical", 52),
    Sketcher.Constraint("Horizontal", 53),
    Sketcher.Constraint("Vertical", 54),
    Sketcher.Constraint("Horizontal", 55),
    Sketcher.Constraint("Vertical", 56),
    Sketcher.Constraint("Horizontal", 57),
    Sketcher.Constraint("Vertical", 58),
    Sketcher.Constraint("Horizontal", 59),
    Sketcher.Constraint("Horizontal", 1, 2, 4, 2),
    Sketcher.Constraint("Horizontal", 3, 2, 6, 2),
    Sketcher.Constraint("Horizontal", 5, 2, 8, 2),
    Sketcher.Constraint("Horizontal", 7, 2, 10, 2),
    Sketcher.Constraint("Horizontal", 13, 2, 16, 2),
    Sketcher.Constraint("Horizontal", 15, 2, 18, 2),
    Sketcher.Constraint("Horizontal", 21, 2, 24, 2),
    Sketcher.Constraint("Horizontal", 23, 2, 26, 2),
    Sketcher.Constraint("Horizontal", 29, 2, 32, 2),
    Sketcher.Constraint("Horizontal", 31, 2, 34, 2),
    Sketcher.Constraint("Horizontal", 37, 2, 40, 2),
    Sketcher.Constraint("Horizontal", 39, 2, 42, 2),
    Sketcher.Constraint("Horizontal", 17, 2, 44, 2),
    Sketcher.Constraint("Horizontal", 19, 2, 46, 2),
    Sketcher.Constraint("Horizontal", 25, 2, 48, 2),
    Sketcher.Constraint("Horizontal", 27, 2, 50, 2),
    Sketcher.Constraint("Horizontal", 33, 2, 52, 2),
    Sketcher.Constraint("Horizontal", 35, 2, 54, 2),
    Sketcher.Constraint("Horizontal", 41, 2, 56, 2),
    Sketcher.Constraint("Horizontal", 43, 2, 58, 2),
    Sketcher.Constraint("Vertical", 3, 2, 12, 2),
    Sketcher.Constraint("Vertical", 2, 2, 13, 2),
    Sketcher.Constraint("Vertical", 11, 2, 16, 2),
    Sketcher.Constraint("Vertical", 10, 2, 17, 2),
    Sketcher.Constraint("Vertical", 15, 2, 20, 2),
    Sketcher.Constraint("Vertical", 14, 2, 21, 2),
    Sketcher.Constraint("Vertical", 19, 2, 24, 2),
    Sketcher.Constraint("Vertical", 18, 2, 25, 2),
    Sketcher.Constraint("Vertical", 23, 2, 28, 2),
    Sketcher.Constraint("Vertical", 22, 2, 29, 2),
    Sketcher.Constraint("Vertical", 27, 2, 32, 2),
    Sketcher.Constraint("Vertical", 26, 2, 33, 2),
    Sketcher.Constraint("Vertical", 31, 2, 36, 2),
    Sketcher.Constraint("Vertical", 30, 2, 37, 2),
    Sketcher.Constraint("Vertical", 35, 2, 40, 2),
    Sketcher.Constraint("Vertical", 34, 2, 41, 2),
    Sketcher.Constraint("Vertical", 7, 2, 44, 2),
    Sketcher.Constraint("Vertical", 6, 2, 45, 2),
    Sketcher.Constraint("Vertical", 47, 2, 48, 2),
    Sketcher.Constraint("Vertical", 46, 2, 49, 2),
    Sketcher.Constraint("Vertical", 51, 2, 52, 2),
    Sketcher.Constraint("Vertical", 50, 2, 53, 2),
    Sketcher.Constraint("Vertical", 55, 2, 56, 2),
    Sketcher.Constraint("Vertical", 54, 2, 57, 2),
    Sketcher.Constraint("Equal", 3, 5),
    Sketcher.Constraint("Equal", 7, 9),
    Sketcher.Constraint("Equal", 59, 0),
    Sketcher.Constraint("Equal", 10, 12),
    Sketcher.Constraint("Equal", 18, 20),
    Sketcher.Constraint("Equal", 26, 28),
    Sketcher.Constraint("Equal", 34, 36),
    Sketcher.Constraint("DistanceX", 1, 1, 1, 2, Q("3 mm")),
    Sketcher.Constraint("DistanceX", 4, 2, 0, 2, Q("6 mm")),
    Sketcher.Constraint("DistanceX", 1, 2, 8, 2, Q("3 mm")),
    Sketcher.Constraint("DistanceY", 0, 2, 12, 2, Q("6 mm")),
    Sketcher.Constraint("DistanceY", 12, 2, 20, 2, Q("6 mm")),
    Sketcher.Constraint("DistanceY", 20, 2, 28, 2, Q("6 mm")),
    Sketcher.Constraint("DistanceY", 28, 2, 36, 2, Q("6 mm")),
    Sketcher.Constraint("DistanceX", 0, 2, -1, 1, Q("2.521545 mm")),
    Sketcher.Constraint("DistanceY", 0, 2, -1, 1, Q("19.869242 mm")),
])
sketch17.setExpression("Constraints[171]", "Params.sketch17_width")
pocket10 = body.newObject("PartDesign::Pocket", "Pocket009")
pocket10.Profile = sketch17
pocket10.Type = "ThroughAll"
pocket10.Reversed = True

sketch18 = body.newObject("Sketcher::SketchObject", "Sketch017")
sketch18.AttachmentSupport = (doc.getObject("YZ_Plane"), [""])
sketch18.MapMode = "FlatFace"
sketch18.AttachmentOffset = App.Placement(App.Vector(0, 0, -15.521545), App.Rotation())
add_polygon(sketch18, [(-5.1, 1.9), (-10.1, 1.9), (-10.1, 3.4), (-5.1, 3.4)])
add_polygon(sketch18, [(-5.1, -4.1), (-10.1, -4.1), (-10.1, -2.6), (-5.1, -2.6)])
add_polygon(sketch18, [(-5.1, -10.1), (-10.1, -10.1), (-10.1, -8.6), (-5.1, -8.6)])
add_polygon(sketch18, [(-5.1, -16.1), (-10.1, -16.1), (-10.1, -14.6), (-5.1, -14.6)])
add_polygon(sketch18, [(-5.1, -22.1), (-10.1, -22.1), (-10.1, -20.6), (-5.1, -20.6)])
sketch18.addConstraint([
    Sketcher.Constraint("Horizontal", 0),
    Sketcher.Constraint("Vertical", 1),
    Sketcher.Constraint("Horizontal", 2),
    Sketcher.Constraint("Vertical", 3),
    Sketcher.Constraint("Horizontal", 4),
    Sketcher.Constraint("Vertical", 5),
    Sketcher.Constraint("Horizontal", 6),
    Sketcher.Constraint("Vertical", 7),
    Sketcher.Constraint("Horizontal", 8),
    Sketcher.Constraint("Vertical", 9),
    Sketcher.Constraint("Horizontal", 10),
    Sketcher.Constraint("Vertical", 11),
    Sketcher.Constraint("Horizontal", 12),
    Sketcher.Constraint("Vertical", 13),
    Sketcher.Constraint("Horizontal", 14),
    Sketcher.Constraint("Vertical", 15),
    Sketcher.Constraint("Horizontal", 16),
    Sketcher.Constraint("Vertical", 17),
    Sketcher.Constraint("Horizontal", 18),
    Sketcher.Constraint("Vertical", 19),
    Sketcher.Constraint("Vertical", 1, 2, 4, 2),
    Sketcher.Constraint("Vertical", 3, 2, 6, 2),
    Sketcher.Constraint("Vertical", 5, 2, 8, 2),
    Sketcher.Constraint("Vertical", 7, 2, 10, 2),
    Sketcher.Constraint("Vertical", 9, 2, 12, 2),
    Sketcher.Constraint("Vertical", 11, 2, 14, 2),
    Sketcher.Constraint("Vertical", 13, 2, 16, 2),
    Sketcher.Constraint("Vertical", 15, 2, 18, 2),
    Sketcher.Constraint("Equal", 3, 5),
    Sketcher.Constraint("Equal", 7, 9),
    Sketcher.Constraint("Equal", 11, 13),
    Sketcher.Constraint("Equal", 15, 17),
    Sketcher.Constraint("DistanceX", 0, 2, 0, 1, Q("5 mm")),
    Sketcher.Constraint("DistanceY", 1, 1, 1, 2, Q("1.5 mm")),
    Sketcher.Constraint("DistanceY", 4, 2, 0, 2, Q("6 mm")),
    Sketcher.Constraint("DistanceY", 8, 2, 4, 2, Q("6 mm")),
    Sketcher.Constraint("DistanceY", 12, 2, 8, 2, Q("6 mm")),
    Sketcher.Constraint("DistanceY", 16, 2, 12, 2, Q("6 mm")),
    Sketcher.Constraint("DistanceX", 0, 2, -1, 1, Q("10.1 mm")),
    Sketcher.Constraint("DistanceY", -1, 1, 0, 2, Q("1.880758 mm")),
])
sketch18.setExpression("Constraints[52]", "Params.sketch18_width")
sketch18.setExpression("Constraints[53]", "Params.sketch18_height")
pocket11 = body.newObject("PartDesign::Pocket", "Pocket010")
pocket11.Profile = sketch18
pocket11.setExpression("Length", "Params.pocket11_length")
pocket11.Reversed = True

doc.recompute()
